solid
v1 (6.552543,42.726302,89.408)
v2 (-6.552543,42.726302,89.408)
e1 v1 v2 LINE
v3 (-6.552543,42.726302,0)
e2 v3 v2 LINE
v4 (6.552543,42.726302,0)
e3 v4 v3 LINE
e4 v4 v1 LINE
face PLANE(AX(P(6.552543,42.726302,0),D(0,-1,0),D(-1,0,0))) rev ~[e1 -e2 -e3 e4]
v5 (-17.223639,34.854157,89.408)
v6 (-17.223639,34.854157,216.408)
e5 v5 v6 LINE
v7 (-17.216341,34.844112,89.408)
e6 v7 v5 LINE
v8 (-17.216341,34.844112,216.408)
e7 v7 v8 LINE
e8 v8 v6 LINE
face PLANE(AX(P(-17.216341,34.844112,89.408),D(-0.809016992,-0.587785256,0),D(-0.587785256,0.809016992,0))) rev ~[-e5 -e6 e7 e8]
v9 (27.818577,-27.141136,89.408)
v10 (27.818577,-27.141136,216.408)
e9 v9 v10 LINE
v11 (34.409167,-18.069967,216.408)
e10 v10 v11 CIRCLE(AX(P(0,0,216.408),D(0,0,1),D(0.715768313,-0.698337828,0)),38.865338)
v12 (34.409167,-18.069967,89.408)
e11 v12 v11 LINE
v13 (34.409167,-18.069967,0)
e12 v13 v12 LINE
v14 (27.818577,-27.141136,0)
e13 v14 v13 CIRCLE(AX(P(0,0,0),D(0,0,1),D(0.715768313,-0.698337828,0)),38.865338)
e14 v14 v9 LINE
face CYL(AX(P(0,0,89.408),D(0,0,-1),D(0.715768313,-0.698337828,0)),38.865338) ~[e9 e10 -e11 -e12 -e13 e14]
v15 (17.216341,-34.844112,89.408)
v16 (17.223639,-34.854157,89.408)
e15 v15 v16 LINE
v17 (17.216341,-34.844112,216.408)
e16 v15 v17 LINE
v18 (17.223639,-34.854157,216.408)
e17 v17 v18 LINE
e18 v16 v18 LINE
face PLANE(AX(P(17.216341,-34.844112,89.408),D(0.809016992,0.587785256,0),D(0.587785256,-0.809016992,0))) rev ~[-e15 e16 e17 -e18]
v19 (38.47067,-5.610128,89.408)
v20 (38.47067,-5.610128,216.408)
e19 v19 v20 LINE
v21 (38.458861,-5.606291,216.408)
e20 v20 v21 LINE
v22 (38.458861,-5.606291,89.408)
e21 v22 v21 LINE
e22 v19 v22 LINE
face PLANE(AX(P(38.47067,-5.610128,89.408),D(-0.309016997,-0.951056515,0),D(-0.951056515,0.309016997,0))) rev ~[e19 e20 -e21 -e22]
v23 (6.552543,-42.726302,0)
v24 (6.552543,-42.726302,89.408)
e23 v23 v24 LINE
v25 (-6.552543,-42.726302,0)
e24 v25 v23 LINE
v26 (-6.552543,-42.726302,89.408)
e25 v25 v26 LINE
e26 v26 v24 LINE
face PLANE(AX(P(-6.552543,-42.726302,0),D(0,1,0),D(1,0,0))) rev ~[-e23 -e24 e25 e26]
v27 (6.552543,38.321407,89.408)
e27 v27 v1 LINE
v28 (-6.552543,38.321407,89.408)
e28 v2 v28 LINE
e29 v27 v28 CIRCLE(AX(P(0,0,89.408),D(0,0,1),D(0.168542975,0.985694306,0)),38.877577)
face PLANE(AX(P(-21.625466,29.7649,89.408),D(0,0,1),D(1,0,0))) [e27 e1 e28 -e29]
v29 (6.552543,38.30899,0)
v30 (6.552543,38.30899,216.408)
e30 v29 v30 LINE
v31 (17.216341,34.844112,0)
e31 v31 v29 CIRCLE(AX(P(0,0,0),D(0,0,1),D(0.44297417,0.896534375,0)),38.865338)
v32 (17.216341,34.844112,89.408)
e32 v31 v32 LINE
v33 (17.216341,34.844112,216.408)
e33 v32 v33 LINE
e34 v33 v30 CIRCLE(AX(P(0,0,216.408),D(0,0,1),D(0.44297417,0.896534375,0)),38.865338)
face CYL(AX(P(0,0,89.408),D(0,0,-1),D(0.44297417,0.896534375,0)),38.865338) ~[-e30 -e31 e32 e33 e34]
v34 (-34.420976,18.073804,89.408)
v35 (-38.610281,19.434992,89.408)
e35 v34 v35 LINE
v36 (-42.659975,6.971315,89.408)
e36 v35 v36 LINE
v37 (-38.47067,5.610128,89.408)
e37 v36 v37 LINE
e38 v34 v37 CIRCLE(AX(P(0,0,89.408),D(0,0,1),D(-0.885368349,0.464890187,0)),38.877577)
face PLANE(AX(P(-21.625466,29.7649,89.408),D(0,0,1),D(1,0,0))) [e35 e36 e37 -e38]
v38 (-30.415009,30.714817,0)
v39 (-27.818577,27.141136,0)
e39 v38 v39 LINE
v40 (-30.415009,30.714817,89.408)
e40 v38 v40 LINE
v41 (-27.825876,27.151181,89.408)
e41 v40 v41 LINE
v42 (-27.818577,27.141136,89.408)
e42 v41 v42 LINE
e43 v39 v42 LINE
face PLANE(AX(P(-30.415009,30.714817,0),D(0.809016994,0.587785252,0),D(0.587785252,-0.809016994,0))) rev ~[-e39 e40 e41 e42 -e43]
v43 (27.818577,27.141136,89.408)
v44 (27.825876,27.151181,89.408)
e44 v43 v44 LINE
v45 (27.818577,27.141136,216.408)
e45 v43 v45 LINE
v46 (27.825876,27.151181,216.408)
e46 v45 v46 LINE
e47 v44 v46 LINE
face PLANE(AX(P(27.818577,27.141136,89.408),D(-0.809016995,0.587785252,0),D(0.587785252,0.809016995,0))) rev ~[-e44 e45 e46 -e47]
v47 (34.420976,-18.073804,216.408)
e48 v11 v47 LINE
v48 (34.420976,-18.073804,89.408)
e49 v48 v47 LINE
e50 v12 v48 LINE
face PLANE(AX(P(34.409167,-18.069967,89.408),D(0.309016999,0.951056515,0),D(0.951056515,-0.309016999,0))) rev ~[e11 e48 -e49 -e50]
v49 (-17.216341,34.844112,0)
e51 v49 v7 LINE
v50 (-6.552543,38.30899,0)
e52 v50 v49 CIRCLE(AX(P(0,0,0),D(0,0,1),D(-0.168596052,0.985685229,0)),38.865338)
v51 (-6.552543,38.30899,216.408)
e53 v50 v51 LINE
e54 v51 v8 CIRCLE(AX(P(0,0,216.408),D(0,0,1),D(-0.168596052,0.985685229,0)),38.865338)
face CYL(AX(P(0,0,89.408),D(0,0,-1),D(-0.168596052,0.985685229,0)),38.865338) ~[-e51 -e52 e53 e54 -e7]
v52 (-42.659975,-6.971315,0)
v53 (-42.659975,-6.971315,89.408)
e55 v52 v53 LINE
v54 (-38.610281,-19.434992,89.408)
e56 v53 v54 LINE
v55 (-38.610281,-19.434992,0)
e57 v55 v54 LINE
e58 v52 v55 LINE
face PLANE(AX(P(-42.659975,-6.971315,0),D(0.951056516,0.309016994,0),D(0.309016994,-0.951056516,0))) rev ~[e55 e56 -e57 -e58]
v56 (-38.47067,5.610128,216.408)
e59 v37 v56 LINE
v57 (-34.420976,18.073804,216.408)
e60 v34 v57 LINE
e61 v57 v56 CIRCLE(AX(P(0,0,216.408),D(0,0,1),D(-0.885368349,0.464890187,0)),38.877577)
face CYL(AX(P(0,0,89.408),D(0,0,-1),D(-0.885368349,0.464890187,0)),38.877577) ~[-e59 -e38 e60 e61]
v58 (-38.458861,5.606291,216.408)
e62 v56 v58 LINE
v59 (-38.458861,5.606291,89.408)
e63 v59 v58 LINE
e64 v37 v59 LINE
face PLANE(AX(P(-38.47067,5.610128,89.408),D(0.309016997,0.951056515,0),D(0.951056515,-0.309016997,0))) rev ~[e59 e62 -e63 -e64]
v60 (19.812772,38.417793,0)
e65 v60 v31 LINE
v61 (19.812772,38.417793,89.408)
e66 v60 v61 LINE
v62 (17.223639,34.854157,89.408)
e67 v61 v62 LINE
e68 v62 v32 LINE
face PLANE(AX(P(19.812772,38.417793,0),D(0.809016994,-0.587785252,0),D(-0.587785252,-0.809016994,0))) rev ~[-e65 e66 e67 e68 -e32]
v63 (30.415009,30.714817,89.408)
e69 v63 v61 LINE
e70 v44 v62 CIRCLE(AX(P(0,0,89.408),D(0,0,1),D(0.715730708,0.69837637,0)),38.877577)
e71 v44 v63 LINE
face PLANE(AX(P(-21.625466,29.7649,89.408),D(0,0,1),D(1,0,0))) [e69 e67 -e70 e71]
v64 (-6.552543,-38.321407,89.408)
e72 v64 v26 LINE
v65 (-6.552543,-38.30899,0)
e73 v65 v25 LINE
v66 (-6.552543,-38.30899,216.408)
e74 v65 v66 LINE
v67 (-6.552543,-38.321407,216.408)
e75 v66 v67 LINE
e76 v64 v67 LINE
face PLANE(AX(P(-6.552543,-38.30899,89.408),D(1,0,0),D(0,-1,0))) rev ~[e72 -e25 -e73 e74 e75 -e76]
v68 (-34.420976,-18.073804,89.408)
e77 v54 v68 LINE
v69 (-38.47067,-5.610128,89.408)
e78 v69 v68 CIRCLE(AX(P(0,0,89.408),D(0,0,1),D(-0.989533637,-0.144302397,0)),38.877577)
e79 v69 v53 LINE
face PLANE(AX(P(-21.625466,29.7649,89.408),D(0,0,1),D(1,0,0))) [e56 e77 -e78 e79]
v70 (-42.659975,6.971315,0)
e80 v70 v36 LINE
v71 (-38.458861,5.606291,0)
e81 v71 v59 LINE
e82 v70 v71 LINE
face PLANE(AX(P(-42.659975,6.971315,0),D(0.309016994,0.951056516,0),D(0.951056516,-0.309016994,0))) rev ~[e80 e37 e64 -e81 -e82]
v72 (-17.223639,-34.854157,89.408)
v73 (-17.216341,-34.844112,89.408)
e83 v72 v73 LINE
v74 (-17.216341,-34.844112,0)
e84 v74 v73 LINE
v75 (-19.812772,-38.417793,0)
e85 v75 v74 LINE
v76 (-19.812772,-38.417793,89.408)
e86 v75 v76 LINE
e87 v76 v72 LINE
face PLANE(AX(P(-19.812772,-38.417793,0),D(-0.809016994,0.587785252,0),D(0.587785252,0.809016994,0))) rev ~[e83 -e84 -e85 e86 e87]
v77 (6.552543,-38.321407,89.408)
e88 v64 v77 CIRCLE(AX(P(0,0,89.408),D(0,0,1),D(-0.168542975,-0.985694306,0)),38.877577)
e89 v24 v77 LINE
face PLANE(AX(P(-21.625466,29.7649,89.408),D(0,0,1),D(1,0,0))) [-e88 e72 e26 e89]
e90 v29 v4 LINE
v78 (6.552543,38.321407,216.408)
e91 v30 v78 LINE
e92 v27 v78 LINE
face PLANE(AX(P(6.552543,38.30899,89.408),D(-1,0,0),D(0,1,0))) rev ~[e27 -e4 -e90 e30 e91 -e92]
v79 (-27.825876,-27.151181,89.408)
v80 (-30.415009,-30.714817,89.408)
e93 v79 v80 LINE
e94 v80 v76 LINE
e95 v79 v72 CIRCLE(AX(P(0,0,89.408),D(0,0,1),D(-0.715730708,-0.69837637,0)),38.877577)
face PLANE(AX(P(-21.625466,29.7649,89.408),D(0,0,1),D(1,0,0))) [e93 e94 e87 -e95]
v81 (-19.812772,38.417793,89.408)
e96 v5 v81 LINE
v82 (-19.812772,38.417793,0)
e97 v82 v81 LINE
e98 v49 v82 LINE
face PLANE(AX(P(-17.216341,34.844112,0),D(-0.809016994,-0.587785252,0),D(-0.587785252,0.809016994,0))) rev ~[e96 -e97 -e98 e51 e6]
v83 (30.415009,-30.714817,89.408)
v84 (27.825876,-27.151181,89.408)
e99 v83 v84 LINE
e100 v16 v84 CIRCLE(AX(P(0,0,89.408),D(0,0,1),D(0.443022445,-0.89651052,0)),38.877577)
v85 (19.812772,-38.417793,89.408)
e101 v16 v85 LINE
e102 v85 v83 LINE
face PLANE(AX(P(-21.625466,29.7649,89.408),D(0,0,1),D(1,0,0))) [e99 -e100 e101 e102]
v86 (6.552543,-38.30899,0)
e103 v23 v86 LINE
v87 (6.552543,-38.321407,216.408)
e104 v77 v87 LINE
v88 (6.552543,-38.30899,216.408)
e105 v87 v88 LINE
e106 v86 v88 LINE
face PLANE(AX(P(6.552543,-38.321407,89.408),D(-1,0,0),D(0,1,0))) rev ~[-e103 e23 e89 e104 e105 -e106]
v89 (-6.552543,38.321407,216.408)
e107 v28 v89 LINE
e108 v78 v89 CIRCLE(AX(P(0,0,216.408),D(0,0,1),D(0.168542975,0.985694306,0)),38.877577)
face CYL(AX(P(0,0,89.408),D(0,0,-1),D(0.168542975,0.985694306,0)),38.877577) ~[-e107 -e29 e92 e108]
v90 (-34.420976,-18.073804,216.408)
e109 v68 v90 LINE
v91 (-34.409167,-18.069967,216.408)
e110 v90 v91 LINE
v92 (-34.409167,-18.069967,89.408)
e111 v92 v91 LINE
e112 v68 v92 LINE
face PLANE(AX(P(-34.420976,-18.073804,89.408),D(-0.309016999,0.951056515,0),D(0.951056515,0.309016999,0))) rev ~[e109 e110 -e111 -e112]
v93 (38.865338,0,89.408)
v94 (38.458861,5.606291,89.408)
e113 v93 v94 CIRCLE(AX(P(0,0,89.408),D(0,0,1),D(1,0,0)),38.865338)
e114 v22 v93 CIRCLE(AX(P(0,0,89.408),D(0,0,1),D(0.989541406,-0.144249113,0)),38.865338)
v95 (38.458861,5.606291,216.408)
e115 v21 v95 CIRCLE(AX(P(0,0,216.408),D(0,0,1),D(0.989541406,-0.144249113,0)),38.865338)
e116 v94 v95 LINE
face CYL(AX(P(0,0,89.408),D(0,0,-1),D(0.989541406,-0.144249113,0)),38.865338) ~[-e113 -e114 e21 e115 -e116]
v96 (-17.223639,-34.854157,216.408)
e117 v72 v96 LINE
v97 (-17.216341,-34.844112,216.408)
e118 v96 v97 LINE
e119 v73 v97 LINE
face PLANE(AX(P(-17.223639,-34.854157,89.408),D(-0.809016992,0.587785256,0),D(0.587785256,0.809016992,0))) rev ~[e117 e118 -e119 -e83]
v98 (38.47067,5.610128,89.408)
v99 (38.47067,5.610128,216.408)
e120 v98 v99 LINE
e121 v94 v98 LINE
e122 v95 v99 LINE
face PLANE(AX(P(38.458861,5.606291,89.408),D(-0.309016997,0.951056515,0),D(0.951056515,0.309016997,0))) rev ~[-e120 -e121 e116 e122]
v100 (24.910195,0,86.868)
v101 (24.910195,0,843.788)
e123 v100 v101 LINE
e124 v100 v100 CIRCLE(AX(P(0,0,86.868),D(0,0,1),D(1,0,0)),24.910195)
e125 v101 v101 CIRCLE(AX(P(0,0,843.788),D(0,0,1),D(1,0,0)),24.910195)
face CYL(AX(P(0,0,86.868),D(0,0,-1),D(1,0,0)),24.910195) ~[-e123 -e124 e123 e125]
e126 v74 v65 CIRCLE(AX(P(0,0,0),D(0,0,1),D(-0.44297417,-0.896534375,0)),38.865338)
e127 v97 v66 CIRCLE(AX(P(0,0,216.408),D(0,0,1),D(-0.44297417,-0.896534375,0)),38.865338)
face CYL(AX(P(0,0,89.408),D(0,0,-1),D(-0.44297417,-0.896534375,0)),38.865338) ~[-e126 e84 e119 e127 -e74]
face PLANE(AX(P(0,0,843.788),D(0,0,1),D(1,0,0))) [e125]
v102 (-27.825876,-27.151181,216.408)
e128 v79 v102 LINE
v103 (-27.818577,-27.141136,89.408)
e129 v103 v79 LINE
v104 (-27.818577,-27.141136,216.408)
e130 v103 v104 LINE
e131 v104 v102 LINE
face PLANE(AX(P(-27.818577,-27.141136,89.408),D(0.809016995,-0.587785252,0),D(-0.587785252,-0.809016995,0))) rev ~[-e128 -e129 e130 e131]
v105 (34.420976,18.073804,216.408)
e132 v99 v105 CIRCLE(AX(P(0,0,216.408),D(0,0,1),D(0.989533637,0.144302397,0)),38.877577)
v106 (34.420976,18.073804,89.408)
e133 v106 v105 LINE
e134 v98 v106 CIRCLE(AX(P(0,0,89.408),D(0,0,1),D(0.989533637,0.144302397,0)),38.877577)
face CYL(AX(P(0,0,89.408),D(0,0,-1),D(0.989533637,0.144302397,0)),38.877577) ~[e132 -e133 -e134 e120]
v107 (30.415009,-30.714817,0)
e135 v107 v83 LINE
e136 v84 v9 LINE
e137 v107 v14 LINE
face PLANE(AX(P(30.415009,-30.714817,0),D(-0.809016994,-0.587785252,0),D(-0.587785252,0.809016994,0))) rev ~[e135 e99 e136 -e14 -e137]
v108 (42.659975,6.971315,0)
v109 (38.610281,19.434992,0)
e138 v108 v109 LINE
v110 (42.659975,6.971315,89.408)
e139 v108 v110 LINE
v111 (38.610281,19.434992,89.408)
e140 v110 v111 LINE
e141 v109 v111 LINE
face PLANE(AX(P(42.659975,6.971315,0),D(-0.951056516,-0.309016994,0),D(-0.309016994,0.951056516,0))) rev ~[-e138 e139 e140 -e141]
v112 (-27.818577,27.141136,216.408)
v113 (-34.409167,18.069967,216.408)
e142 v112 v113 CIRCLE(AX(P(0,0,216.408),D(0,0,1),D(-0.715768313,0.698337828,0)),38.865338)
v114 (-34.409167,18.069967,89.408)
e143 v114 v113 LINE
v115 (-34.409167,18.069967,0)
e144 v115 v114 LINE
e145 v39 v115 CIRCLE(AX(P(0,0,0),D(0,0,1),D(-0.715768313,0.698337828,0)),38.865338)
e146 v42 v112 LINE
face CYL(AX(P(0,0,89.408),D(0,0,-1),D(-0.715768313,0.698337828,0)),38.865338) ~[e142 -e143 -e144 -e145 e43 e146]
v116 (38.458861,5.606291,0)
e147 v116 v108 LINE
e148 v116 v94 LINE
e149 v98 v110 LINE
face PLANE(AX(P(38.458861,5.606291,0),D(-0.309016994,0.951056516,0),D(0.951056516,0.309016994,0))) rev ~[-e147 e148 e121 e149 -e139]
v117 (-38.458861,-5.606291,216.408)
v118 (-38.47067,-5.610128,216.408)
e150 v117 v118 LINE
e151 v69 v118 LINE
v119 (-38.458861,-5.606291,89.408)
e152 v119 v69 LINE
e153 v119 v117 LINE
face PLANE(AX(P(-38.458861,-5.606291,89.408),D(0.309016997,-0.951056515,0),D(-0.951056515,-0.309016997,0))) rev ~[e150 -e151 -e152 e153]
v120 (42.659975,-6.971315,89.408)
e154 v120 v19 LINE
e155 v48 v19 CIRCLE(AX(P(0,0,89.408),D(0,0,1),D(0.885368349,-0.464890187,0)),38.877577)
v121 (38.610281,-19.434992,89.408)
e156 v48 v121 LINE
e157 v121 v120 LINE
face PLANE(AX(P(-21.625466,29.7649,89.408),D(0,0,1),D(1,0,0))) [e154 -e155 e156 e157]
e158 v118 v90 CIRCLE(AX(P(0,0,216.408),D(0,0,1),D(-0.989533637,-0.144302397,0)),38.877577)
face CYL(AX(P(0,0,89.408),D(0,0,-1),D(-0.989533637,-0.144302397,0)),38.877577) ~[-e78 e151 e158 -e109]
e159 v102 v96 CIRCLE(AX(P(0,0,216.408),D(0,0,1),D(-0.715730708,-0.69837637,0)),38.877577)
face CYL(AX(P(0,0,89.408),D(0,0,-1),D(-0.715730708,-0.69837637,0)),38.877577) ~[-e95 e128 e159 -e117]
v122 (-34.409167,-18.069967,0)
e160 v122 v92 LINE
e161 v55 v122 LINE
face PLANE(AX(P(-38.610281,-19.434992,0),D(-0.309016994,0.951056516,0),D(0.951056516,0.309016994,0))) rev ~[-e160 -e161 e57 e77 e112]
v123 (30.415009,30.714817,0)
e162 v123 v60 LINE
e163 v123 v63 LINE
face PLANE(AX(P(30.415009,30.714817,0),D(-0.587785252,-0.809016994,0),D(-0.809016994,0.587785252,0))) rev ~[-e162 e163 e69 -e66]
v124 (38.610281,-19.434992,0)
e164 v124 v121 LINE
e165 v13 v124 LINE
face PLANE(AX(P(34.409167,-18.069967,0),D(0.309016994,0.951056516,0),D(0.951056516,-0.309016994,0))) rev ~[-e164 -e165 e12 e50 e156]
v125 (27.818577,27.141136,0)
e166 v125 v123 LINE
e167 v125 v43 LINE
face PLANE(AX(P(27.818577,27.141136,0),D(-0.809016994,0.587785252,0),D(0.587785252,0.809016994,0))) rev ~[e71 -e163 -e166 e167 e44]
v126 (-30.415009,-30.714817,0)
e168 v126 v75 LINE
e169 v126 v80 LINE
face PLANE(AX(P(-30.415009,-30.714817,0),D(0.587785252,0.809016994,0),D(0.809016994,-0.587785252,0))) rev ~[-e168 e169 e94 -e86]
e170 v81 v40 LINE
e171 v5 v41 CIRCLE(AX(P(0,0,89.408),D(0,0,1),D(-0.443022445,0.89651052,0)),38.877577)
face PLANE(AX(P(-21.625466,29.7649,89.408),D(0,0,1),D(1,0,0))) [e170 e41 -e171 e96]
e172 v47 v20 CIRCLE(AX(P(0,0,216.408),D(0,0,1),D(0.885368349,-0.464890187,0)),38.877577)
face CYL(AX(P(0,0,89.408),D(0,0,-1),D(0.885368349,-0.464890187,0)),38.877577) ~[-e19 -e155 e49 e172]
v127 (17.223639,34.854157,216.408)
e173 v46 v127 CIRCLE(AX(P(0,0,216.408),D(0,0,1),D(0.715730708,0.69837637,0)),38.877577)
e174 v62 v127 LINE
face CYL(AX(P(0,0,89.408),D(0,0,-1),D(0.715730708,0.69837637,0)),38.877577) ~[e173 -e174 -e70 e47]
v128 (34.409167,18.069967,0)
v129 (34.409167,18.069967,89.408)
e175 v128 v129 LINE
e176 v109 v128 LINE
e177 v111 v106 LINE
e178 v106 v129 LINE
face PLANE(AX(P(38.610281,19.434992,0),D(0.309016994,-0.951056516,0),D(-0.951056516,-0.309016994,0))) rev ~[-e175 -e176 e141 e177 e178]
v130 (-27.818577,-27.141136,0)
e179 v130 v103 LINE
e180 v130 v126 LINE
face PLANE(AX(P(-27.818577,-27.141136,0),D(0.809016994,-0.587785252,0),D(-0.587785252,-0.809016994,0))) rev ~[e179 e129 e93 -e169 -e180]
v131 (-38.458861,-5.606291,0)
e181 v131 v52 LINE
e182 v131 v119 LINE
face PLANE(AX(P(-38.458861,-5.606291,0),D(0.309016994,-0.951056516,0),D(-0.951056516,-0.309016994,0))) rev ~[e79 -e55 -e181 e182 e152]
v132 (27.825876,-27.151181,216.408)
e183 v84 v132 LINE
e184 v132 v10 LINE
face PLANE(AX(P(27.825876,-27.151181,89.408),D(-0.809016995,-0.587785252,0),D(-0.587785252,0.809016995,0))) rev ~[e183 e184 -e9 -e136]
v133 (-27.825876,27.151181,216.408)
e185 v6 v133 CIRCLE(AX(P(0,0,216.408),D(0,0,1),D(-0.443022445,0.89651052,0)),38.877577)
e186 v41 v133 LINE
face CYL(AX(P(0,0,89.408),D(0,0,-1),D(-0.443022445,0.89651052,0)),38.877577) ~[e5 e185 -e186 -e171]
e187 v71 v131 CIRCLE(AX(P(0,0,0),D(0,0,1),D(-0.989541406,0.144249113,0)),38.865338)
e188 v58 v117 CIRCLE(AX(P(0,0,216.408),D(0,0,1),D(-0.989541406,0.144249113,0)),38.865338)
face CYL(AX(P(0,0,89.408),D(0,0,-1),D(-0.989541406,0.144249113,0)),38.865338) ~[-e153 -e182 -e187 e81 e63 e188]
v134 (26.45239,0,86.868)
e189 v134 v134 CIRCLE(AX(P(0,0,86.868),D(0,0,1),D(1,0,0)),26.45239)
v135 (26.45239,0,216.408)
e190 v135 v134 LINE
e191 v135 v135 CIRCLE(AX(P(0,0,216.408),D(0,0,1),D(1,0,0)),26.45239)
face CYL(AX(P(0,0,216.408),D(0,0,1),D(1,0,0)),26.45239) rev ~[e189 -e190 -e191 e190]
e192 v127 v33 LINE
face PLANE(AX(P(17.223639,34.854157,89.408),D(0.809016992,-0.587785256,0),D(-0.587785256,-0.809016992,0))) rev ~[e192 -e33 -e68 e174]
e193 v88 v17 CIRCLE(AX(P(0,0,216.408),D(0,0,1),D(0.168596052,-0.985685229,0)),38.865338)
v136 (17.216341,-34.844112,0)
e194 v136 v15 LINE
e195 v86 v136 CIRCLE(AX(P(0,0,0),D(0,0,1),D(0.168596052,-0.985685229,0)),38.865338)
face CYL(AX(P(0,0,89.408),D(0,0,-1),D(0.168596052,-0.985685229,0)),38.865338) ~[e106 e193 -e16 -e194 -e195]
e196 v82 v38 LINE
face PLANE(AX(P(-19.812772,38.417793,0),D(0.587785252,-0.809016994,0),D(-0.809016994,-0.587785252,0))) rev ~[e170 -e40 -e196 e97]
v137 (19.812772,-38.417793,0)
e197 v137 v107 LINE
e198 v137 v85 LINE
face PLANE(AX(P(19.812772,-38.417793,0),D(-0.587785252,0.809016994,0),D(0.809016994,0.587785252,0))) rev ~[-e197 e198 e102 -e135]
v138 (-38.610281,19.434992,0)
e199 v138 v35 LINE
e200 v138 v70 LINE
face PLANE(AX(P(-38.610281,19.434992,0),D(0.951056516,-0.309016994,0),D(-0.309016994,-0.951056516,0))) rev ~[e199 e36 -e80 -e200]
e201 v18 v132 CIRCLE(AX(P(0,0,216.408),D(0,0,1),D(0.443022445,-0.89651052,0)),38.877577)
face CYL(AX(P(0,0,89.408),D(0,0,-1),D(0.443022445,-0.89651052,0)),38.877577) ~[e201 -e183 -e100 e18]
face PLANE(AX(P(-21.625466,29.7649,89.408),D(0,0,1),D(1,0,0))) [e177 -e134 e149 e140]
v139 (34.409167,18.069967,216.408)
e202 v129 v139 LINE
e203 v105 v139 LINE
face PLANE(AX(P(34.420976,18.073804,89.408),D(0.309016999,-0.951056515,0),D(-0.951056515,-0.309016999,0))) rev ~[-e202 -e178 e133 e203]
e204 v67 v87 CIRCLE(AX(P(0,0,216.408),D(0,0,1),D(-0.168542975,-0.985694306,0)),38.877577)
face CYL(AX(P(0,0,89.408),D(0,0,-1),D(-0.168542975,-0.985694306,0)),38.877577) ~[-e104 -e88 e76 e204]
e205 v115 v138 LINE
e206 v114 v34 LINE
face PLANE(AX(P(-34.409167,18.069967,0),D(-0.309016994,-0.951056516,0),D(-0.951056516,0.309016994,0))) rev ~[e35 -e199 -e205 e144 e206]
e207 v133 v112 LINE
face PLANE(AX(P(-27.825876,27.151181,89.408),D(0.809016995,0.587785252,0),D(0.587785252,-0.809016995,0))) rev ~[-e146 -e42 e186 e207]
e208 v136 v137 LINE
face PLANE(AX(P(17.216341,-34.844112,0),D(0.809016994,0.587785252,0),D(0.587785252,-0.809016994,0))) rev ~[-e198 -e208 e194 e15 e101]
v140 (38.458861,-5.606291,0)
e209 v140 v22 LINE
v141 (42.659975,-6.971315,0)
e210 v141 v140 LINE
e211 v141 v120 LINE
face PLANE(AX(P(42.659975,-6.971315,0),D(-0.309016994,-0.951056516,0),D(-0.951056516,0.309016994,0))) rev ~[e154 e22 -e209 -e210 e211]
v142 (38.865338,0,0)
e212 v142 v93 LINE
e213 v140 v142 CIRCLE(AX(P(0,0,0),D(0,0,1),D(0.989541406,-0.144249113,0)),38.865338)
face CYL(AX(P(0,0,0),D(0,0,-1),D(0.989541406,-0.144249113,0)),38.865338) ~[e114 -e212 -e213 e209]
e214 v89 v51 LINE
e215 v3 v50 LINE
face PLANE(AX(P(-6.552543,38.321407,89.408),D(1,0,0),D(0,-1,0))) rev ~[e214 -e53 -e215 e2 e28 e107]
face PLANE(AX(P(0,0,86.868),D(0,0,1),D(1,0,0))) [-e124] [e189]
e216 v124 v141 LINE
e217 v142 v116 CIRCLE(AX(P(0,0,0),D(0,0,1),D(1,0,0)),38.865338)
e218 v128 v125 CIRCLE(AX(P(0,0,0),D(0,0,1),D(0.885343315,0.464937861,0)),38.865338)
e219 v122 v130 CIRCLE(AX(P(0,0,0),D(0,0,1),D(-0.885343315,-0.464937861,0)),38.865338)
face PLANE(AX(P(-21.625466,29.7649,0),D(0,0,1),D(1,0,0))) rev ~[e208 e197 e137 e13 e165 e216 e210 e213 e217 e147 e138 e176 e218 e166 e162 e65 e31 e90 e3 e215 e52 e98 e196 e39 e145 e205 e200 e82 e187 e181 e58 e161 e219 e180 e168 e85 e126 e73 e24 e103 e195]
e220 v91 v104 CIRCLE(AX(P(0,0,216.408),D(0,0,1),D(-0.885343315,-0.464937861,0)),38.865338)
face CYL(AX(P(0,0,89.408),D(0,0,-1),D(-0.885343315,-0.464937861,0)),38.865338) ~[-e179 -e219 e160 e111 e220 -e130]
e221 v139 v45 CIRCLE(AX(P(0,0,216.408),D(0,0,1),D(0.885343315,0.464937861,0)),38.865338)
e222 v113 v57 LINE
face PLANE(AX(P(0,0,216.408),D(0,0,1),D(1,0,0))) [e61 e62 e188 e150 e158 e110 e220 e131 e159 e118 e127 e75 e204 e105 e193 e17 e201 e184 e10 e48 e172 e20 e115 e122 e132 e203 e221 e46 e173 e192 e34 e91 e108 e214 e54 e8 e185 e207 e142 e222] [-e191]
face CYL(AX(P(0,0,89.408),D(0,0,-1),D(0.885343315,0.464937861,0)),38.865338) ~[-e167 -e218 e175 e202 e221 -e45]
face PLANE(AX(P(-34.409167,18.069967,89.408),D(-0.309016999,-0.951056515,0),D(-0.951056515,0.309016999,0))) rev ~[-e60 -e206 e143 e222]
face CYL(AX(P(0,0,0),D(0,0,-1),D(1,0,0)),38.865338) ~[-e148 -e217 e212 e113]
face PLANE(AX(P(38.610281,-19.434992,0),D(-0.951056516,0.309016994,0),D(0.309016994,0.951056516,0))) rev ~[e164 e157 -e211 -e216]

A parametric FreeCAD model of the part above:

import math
import FreeCAD as App
import Part
import Sketcher
Q = App.Units.Quantity

doc = App.newDocument("Part")
body = doc.addObject("PartDesign::Body", "Body")

# Sketch on XY plane
sketch1 = body.newObject("Sketcher::SketchObject", "Sketch")
sketch1.AttachmentSupport = (doc.getObject("XY_Plane"), [""])
sketch1.MapMode = "FlatFace"
sketch1.addGeometry([
    Part.LineSegment(App.Vector(-17.2, 34.8, 0), App.Vector(-19.8, 38.4, 0)),  # 0
    Part.LineSegment(App.Vector(-19.8, 38.4, 0), App.Vector(-30.4, 30.7, 0)),  # 1
    Part.LineSegment(App.Vector(-30.4, 30.7, 0), App.Vector(-27.8, 27.1, 0)),  # 2
    Part.ArcOfCircle(Part.Circle(App.Vector(0, 0, 0), App.Vector(0, 0, 1), 38.9), math.radians(135.71), math.radians(152.29)),  # 3
    Part.LineSegment(App.Vector(-34.4, 18.1, 0), App.Vector(-38.6, 19.4, 0)),  # 4
    Part.LineSegment(App.Vector(-38.6, 19.4, 0), App.Vector(-42.7, 7, 0)),  # 5
    Part.LineSegment(App.Vector(-42.7, 7, 0), App.Vector(-38.5, 5.6, 0)),  # 6
    Part.ArcOfCircle(Part.Circle(App.Vector(0, 0, 0), App.Vector(0, 0, 1), 38.9), math.radians(171.71), math.radians(188.29)),  # 7
    Part.LineSegment(App.Vector(-38.5, -5.6, 0), App.Vector(-42.7, -7, 0)),  # 8
    Part.LineSegment(App.Vector(-42.7, -7, 0), App.Vector(-38.6, -19.4, 0)),  # 9
    Part.LineSegment(App.Vector(-38.6, -19.4, 0), App.Vector(-34.4, -18.1, 0)),  # 10
    Part.ArcOfCircle(Part.Circle(App.Vector(0, 0, 0), App.Vector(0, 0, 1), 38.9), math.radians(-152.29), math.radians(-135.71)),  # 11
    Part.LineSegment(App.Vector(-27.8, -27.1, 0), App.Vector(-30.4, -30.7, 0)),  # 12
    Part.LineSegment(App.Vector(-30.4, -30.7, 0), App.Vector(-19.8, -38.4, 0)),  # 13
    Part.LineSegment(App.Vector(-19.8, -38.4, 0), App.Vector(-17.2, -34.8, 0)),  # 14
    Part.ArcOfCircle(Part.Circle(App.Vector(0, 0, 0), App.Vector(0, 0, 1), 38.9), math.radians(-116.29), math.radians(-99.71)),  # 15
    Part.LineSegment(App.Vector(-6.6, -38.3, 0), App.Vector(-6.6, -42.7, 0)),  # 16
    Part.LineSegment(App.Vector(-6.6, -42.7, 0), App.Vector(6.6, -42.7, 0)),  # 17
    Part.LineSegment(App.Vector(6.6, -42.7, 0), App.Vector(6.6, -38.3, 0)),  # 18
    Part.ArcOfCircle(Part.Circle(App.Vector(0, 0, 0), App.Vector(0, 0, 1), 38.9), math.radians(-80.29), math.radians(-63.71)),  # 19
    Part.LineSegment(App.Vector(17.2, -34.8, 0), App.Vector(19.8, -38.4, 0)),  # 20
    Part.LineSegment(App.Vector(19.8, -38.4, 0), App.Vector(30.4, -30.7, 0)),  # 21
    Part.LineSegment(App.Vector(30.4, -30.7, 0), App.Vector(27.8, -27.1, 0)),  # 22
    Part.ArcOfCircle(Part.Circle(App.Vector(0, 0, 0), App.Vector(0, 0, 1), 38.9), math.radians(-44.29), math.radians(-27.71)),  # 23
    Part.LineSegment(App.Vector(34.4, -18.1, 0), App.Vector(38.6, -19.4, 0)),  # 24
    Part.LineSegment(App.Vector(38.6, -19.4, 0), App.Vector(42.7, -7, 0)),  # 25
    Part.LineSegment(App.Vector(42.7, -7, 0), App.Vector(38.5, -5.6, 0)),  # 26
    Part.ArcOfCircle(Part.Circle(App.Vector(0, 0, 0), App.Vector(0, 0, 1), 38.9), math.radians(-8.29), math.radians(0)),  # 27
    Part.ArcOfCircle(Part.Circle(App.Vector(0, 0, 0), App.Vector(0, 0, 1), 38.9), math.radians(0), math.radians(8.29)),  # 28
    Part.LineSegment(App.Vector(38.5, 5.6, 0), App.Vector(42.7, 7, 0)),  # 29
    Part.LineSegment(App.Vector(42.7, 7, 0), App.Vector(38.6, 19.4, 0)),  # 30
    Part.LineSegment(App.Vector(38.6, 19.4, 0), App.Vector(34.4, 18.1, 0)),  # 31
    Part.ArcOfCircle(Part.Circle(App.Vector(0, 0, 0), App.Vector(0, 0, 1), 38.9), math.radians(27.71), math.radians(44.29)),  # 32
    Part.LineSegment(App.Vector(27.8, 27.1, 0), App.Vector(30.4, 30.7, 0)),  # 33
    Part.LineSegment(App.Vector(30.4, 30.7, 0), App.Vector(19.8, 38.4, 0)),  # 34
    Part.LineSegment(App.Vector(19.8, 38.4, 0), App.Vector(17.2, 34.8, 0)),  # 35
    Part.ArcOfCircle(Part.Circle(App.Vector(0, 0, 0), App.Vector(0, 0, 1), 38.9), math.radians(63.71), math.radians(80.29)),  # 36
    Part.LineSegment(App.Vector(6.6, 38.3, 0), App.Vector(6.6, 42.7, 0)),  # 37
    Part.LineSegment(App.Vector(6.6, 42.7, 0), App.Vector(-6.6, 42.7, 0)),  # 38
    Part.LineSegment(App.Vector(-6.6, 42.7, 0), App.Vector(-6.6, 38.3, 0)),  # 39
    Part.ArcOfCircle(Part.Circle(App.Vector(0, 0, 0), App.Vector(0, 0, 1), 38.9), math.radians(99.71), math.radians(116.29)),  # 40
], False)
sketch1.addConstraint([
    Sketcher.Constraint("Coincident", 0, 2, 1, 1),
    Sketcher.Constraint("Coincident", 1, 2, 2, 1),
    Sketcher.Constraint("Coincident", 2, 2, 3, 1),
    Sketcher.Constraint("Coincident", 3, 2, 4, 1),
    Sketcher.Constraint("Coincident", 4, 2, 5, 1),
    Sketcher.Constraint("Coincident", 5, 2, 6, 1),
    Sketcher.Constraint("Coincident", 6, 2, 7, 1),
    Sketcher.Constraint("Coincident", 7, 2, 8, 1),
    Sketcher.Constraint("Coincident", 8, 2, 9, 1),
    Sketcher.Constraint("Coincident", 9, 2, 10, 1),
    Sketcher.Constraint("Coincident", 10, 2, 11, 1),
    Sketcher.Constraint("Coincident", 11, 2, 12, 1),
    Sketcher.Constraint("Coincident", 12, 2, 13, 1),
    Sketcher.Constraint("Coincident", 13, 2, 14, 1),
    Sketcher.Constraint("Coincident", 14, 2, 15, 1),
    Sketcher.Constraint("Coincident", 15, 2, 16, 1),
    Sketcher.Constraint("Coincident", 16, 2, 17, 1),
    Sketcher.Constraint("Coincident", 17, 2, 18, 1),
    Sketcher.Constraint("Coincident", 18, 2, 19, 1),
    Sketcher.Constraint("Coincident", 19, 2, 20, 1),
    Sketcher.Constraint("Coincident", 20, 2, 21, 1),
    Sketcher.Constraint("Coincident", 21, 2, 22, 1),
    Sketcher.Constraint("Coincident", 22, 2, 23, 1),
    Sketcher.Constraint("Coincident", 23, 2, 24, 1),
    Sketcher.Constraint("Coincident", 24, 2, 25, 1),
    Sketcher.Constraint("Coincident", 25, 2, 26, 1),
    Sketcher.Constraint("Coincident", 26, 2, 27, 1),
    Sketcher.Constraint("Tangent", 27, 2, 28, 1),
    Sketcher.Constraint("Coincident", 28, 2, 29, 1),
    Sketcher.Constraint("Coincident", 29, 2, 30, 1),
    Sketcher.Constraint("Coincident", 30, 2, 31, 1),
    Sketcher.Constraint("Coincident", 31, 2, 32, 1),
    Sketcher.Constraint("Coincident", 32, 2, 33, 1),
    Sketcher.Constraint("Coincident", 33, 2, 34, 1),
    Sketcher.Constraint("Coincident", 34, 2, 35, 1),
    Sketcher.Constraint("Coincident", 35, 2, 36, 1),
    Sketcher.Constraint("Coincident", 36, 2, 37, 1),
    Sketcher.Constraint("Coincident", 37, 2, 38, 1),
    Sketcher.Constraint("Coincident", 38, 2, 39, 1),
    Sketcher.Constraint("Coincident", 39, 2, 40, 1),
    Sketcher.Constraint("Coincident", 40, 2, 0, 1),
    Sketcher.Constraint("Vertical", 16),
    Sketcher.Constraint("Horizontal", 17),
    Sketcher.Constraint("Vertical", 18),
    Sketcher.Constraint("Vertical", 37),
    Sketcher.Constraint("Horizontal", 38),
    Sketcher.Constraint("Vertical", 39),
    Sketcher.Constraint("Coincident", 3, 3, -1, 1),
    Sketcher.Constraint("Coincident", 7, 3, -1, 1),
    Sketcher.Constraint("Coincident", 11, 3, -1, 1),
    Sketcher.Constraint("Coincident", 15, 3, -1, 1),
    Sketcher.Constraint("Coincident", 19, 3, -1, 1),
    Sketcher.Constraint("Coincident", 23, 3, -1, 1),
    Sketcher.Constraint("Coincident", 27, 3, -1, 1),
    Sketcher.Constraint("Coincident", 32, 3, -1, 1),
    Sketcher.Constraint("Coincident", 36, 3, -1, 1),
    Sketcher.Constraint("Coincident", 40, 3, -1, 1),
    Sketcher.Constraint("Equal", 3, 7),
    Sketcher.Constraint("Equal", 7, 11),
    Sketcher.Constraint("Equal", 11, 15),
    Sketcher.Constraint("Equal", 15, 19),
    Sketcher.Constraint("Equal", 19, 23),
    Sketcher.Constraint("Equal", 23, 27),
    Sketcher.Constraint("Equal", 27, 28),
    Sketcher.Constraint("Equal", 28, 32),
    Sketcher.Constraint("Equal", 32, 36),
    Sketcher.Constraint("Equal", 36, 40),
    Sketcher.Constraint("Symmetric", 0, 2, 20, 2, -1, 1),
    Sketcher.Constraint("Symmetric", 1, 2, 21, 2, -1, 1),
    Sketcher.Constraint("Symmetric", 4, 2, 24, 2, -1, 1),
    Sketcher.Constraint("Symmetric", 5, 2, 25, 2, -1, 1),
    Sketcher.Constraint("Symmetric", 8, 2, 29, 2, -1, 1),
    Sketcher.Constraint("Symmetric", 9, 2, 30, 2, -1, 1),
    Sketcher.Constraint("Symmetric", 12, 2, 33, 2, -1, 1),
    Sketcher.Constraint("Symmetric", 13, 2, 34, 2, -1, 1),
    Sketcher.Constraint("Symmetric", 16, 2, 37, 2, -1, 1),
    Sketcher.Constraint("Symmetric", 13, 2, 20, 2, -2),
    Sketcher.Constraint("Symmetric", 12, 2, 21, 2, -2),
    Sketcher.Constraint("Symmetric", 9, 2, 24, 2, -2),
    Sketcher.Constraint("Symmetric", 8, 2, 25, 2, -2),
    Sketcher.Constraint("PointOnObject", 27, 2, -1),
    Sketcher.Constraint("Perpendicular", 0, 1),
    Sketcher.Constraint("Perpendicular", 1, 2),
    Sketcher.Constraint("Perpendicular", 4, 5),
    Sketcher.Constraint("Perpendicular", 5, 6),
    Sketcher.Constraint("Perpendicular", 8, 9),
    Sketcher.Constraint("Perpendicular", 9, 10),
    Sketcher.Constraint("Perpendicular", 12, 13),
    Sketcher.Constraint("Perpendicular", 13, 14),
    Sketcher.Constraint("Parallel", 2, 20),
    Sketcher.Constraint("Perpendicular", 21, 22),
    Sketcher.Constraint("Parallel", 6, 24),
    Sketcher.Constraint("Perpendicular", 25, 26),
    Sketcher.Constraint("Parallel", 10, 29),
    Sketcher.Constraint("Perpendicular", 30, 31),
    Sketcher.Constraint("Parallel", 14, 33),
    Sketcher.Constraint("Perpendicular", 34, 35),
    Sketcher.Constraint("Horizontal", 15, 2, 18, 2),
    Sketcher.Constraint("Horizontal", 36, 2, 39, 2),
    Sketcher.Constraint("Equal", 0, 2),
    Sketcher.Constraint("Equal", 2, 4),
    Sketcher.Constraint("Equal", 1, 5),
    Sketcher.Constraint("Equal", 4, 6),
    Sketcher.Constraint("Angle", 0, Q("126 deg")),
    Sketcher.Constraint("Angle", 4, Q("162 deg")),
    Sketcher.Constraint("Radius", 3, 38.865338),
    Sketcher.Constraint("DistanceY", 4, 2, 0, 2, 18.982801),
    Sketcher.Constraint("DistanceY", 5, 2, 1, 2, 23.743502),
    Sketcher.Constraint("DistanceX", 14, 2, 15, 2, 10.663798),
    Sketcher.Constraint("DistanceY", 16, 2, 16, 1, 4.417313),
])
pad1 = body.newObject("PartDesign::Pad", "Pad")
pad1.Profile = sketch1
pad1.Length = Q("3.52 in")

# Sketch on XY plane
sketch2 = body.newObject("Sketcher::SketchObject", "Sketch001")
sketch2.AttachmentSupport = (doc.getObject("XY_Plane"), [""])
sketch2.MapMode = "FlatFace"
sketch2.AttachmentOffset = App.Placement(App.Vector(0, 0, 3.52 * 25.4), App.Rotation())
sketch2.addGeometry([
    Part.LineSegment(App.Vector(38.459, 5.606, 0), App.Vector(38.471, 5.61, 0)),  # 0
    Part.ArcOfCircle(Part.Circle(App.Vector(0, 0, 0), App.Vector(0, 0, 1), 38.878), math.radians(8.3), math.radians(27.7)),  # 1
    Part.LineSegment(App.Vector(34.421, 18.074, 0), App.Vector(34.409, 18.07, 0)),  # 2
    Part.ArcOfCircle(Part.Circle(App.Vector(0, 0, 0), App.Vector(0, 0, 1), 38.865), math.radians(27.71), math.radians(44.29)),  # 3
    Part.LineSegment(App.Vector(27.819, 27.141, 0), App.Vector(27.826, 27.151, 0)),  # 4
    Part.ArcOfCircle(Part.Circle(App.Vector(0, 0, 0), App.Vector(0, 0, 1), 38.878), math.radians(44.3), math.radians(63.7)),  # 5
    Part.LineSegment(App.Vector(17.224, 34.854, 0), App.Vector(17.216, 34.844, 0)),  # 6
    Part.ArcOfCircle(Part.Circle(App.Vector(0, 0, 0), App.Vector(0, 0, 1), 38.865), math.radians(63.71), math.radians(80.29)),  # 7
    Part.LineSegment(App.Vector(6.553, 38.309, 0), App.Vector(6.553, 38.321, 0)),  # 8
    Part.ArcOfCircle(Part.Circle(App.Vector(0, 0, 0), App.Vector(0, 0, 1), 38.878), math.radians(80.3), math.radians(99.7)),  # 9
    Part.LineSegment(App.Vector(-6.553, 38.321, 0), App.Vector(-6.553, 38.309, 0)),  # 10
    Part.ArcOfCircle(Part.Circle(App.Vector(0, 0, 0), App.Vector(0, 0, 1), 38.865), math.radians(99.71), math.radians(116.29)),  # 11
    Part.LineSegment(App.Vector(-17.216, 34.844, 0), App.Vector(-17.224, 34.854, 0)),  # 12
    Part.ArcOfCircle(Part.Circle(App.Vector(0, 0, 0), App.Vector(0, 0, 1), 38.878), math.radians(116.3), math.radians(135.7)),  # 13
    Part.LineSegment(App.Vector(-27.826, 27.151, 0), App.Vector(-27.819, 27.141, 0)),  # 14
    Part.ArcOfCircle(Part.Circle(App.Vector(0, 0, 0), App.Vector(0, 0, 1), 38.865), math.radians(135.71), math.radians(152.29)),  # 15
    Part.LineSegment(App.Vector(-34.409, 18.07, 0), App.Vector(-34.421, 18.074, 0)),  # 16
    Part.ArcOfCircle(Part.Circle(App.Vector(0, 0, 0), App.Vector(0, 0, 1), 38.878), math.radians(152.3), math.radians(171.7)),  # 17
    Part.LineSegment(App.Vector(-38.471, 5.61, 0), App.Vector(-38.459, 5.606, 0)),  # 18
    Part.ArcOfCircle(Part.Circle(App.Vector(0, 0, 0), App.Vector(0, 0, 1), 38.865), math.radians(171.71), math.radians(188.29)),  # 19
    Part.LineSegment(App.Vector(-38.459, -5.606, 0), App.Vector(-38.471, -5.61, 0)),  # 20
    Part.ArcOfCircle(Part.Circle(App.Vector(0, 0, 0), App.Vector(0, 0, 1), 38.878), math.radians(-171.7), math.radians(-152.3)),  # 21
    Part.LineSegment(App.Vector(-34.421, -18.074, 0), App.Vector(-34.409, -18.07, 0)),  # 22
    Part.ArcOfCircle(Part.Circle(App.Vector(0, 0, 0), App.Vector(0, 0, 1), 38.865), math.radians(-152.29), math.radians(-135.71)),  # 23
    Part.LineSegment(App.Vector(-27.819, -27.141, 0), App.Vector(-27.826, -27.151, 0)),  # 24
    Part.ArcOfCircle(Part.Circle(App.Vector(0, 0, 0), App.Vector(0, 0, 1), 38.878), math.radians(-135.7), math.radians(-116.3)),  # 25
    Part.LineSegment(App.Vector(-17.224, -34.854, 0), App.Vector(-17.216, -34.844, 0)),  # 26
    Part.ArcOfCircle(Part.Circle(App.Vector(0, 0, 0), App.Vector(0, 0, 1), 38.865), math.radians(-116.29), math.radians(-99.71)),  # 27
    Part.LineSegment(App.Vector(-6.553, -38.309, 0), App.Vector(-6.553, -38.321, 0)),  # 28
    Part.ArcOfCircle(Part.Circle(App.Vector(0, 0, 0), App.Vector(0, 0, 1), 38.878), math.radians(-99.7), math.radians(-80.3)),  # 29
    Part.LineSegment(App.Vector(6.553, -38.321, 0), App.Vector(6.553, -38.309, 0)),  # 30
    Part.ArcOfCircle(Part.Circle(App.Vector(0, 0, 0), App.Vector(0, 0, 1), 38.865), math.radians(-80.29), math.radians(-63.71)),  # 31
    Part.LineSegment(App.Vector(17.216, -34.844, 0), App.Vector(17.224, -34.854, 0)),  # 32
    Part.ArcOfCircle(Part.Circle(App.Vector(0, 0, 0), App.Vector(0, 0, 1), 38.878), math.radians(-63.7), math.radians(-44.3)),  # 33
    Part.LineSegment(App.Vector(27.826, -27.151, 0), App.Vector(27.819, -27.141, 0)),  # 34
    Part.ArcOfCircle(Part.Circle(App.Vector(0, 0, 0), App.Vector(0, 0, 1), 38.865), math.radians(-44.29), math.radians(-27.71)),  # 35
    Part.LineSegment(App.Vector(34.409, -18.07, 0), App.Vector(34.421, -18.074, 0)),  # 36
    Part.ArcOfCircle(Part.Circle(App.Vector(0, 0, 0), App.Vector(0, 0, 1), 38.878), math.radians(-27.7), math.radians(-8.3)),  # 37
    Part.LineSegment(App.Vector(38.471, -5.61, 0), App.Vector(38.459, -5.606, 0)),  # 38
    Part.ArcOfCircle(Part.Circle(App.Vector(0, 0, 0), App.Vector(0, 0, 1), 38.865), math.radians(-8.29), math.radians(8.29)),  # 39
], False)
sketch2.addConstraint([
    Sketcher.Constraint("Coincident", 0, 2, 1, 1),
    Sketcher.Constraint("Coincident", 1, 2, 2, 1),
    Sketcher.Constraint("Coincident", 2, 2, 3, 1),
    Sketcher.Constraint("Coincident", 3, 2, 4, 1),
    Sketcher.Constraint("Coincident", 4, 2, 5, 1),
    Sketcher.Constraint("Coincident", 5, 2, 6, 1),
    Sketcher.Constraint("Coincident", 6, 2, 7, 1),
    Sketcher.Constraint("Coincident", 7, 2, 8, 1),
    Sketcher.Constraint("Coincident", 8, 2, 9, 1),
    Sketcher.Constraint("Coincident", 9, 2, 10, 1),
    Sketcher.Constraint("Coincident", 10, 2, 11, 1),
    Sketcher.Constraint("Coincident", 11, 2, 12, 1),
    Sketcher.Constraint("Coincident", 12, 2, 13, 1),
    Sketcher.Constraint("Coincident", 13, 2, 14, 1),
    Sketcher.Constraint("Coincident", 14, 2, 15, 1),
    Sketcher.Constraint("Coincident", 15, 2, 16, 1),
    Sketcher.Constraint("Coincident", 16, 2, 17, 1),
    Sketcher.Constraint("Coincident", 17, 2, 18, 1),
    Sketcher.Constraint("Coincident", 18, 2, 19, 1),
    Sketcher.Constraint("Coincident", 19, 2, 20, 1),
    Sketcher.Constraint("Coincident", 20, 2, 21, 1),
    Sketcher.Constraint("Coincident", 21, 2, 22, 1),
    Sketcher.Constraint("Coincident", 22, 2, 23, 1),
    Sketcher.Constraint("Coincident", 23, 2, 24, 1),
    Sketcher.Constraint("Coincident", 24, 2, 25, 1),
    Sketcher.Constraint("Coincident", 25, 2, 26, 1),
    Sketcher.Constraint("Coincident", 26, 2, 27, 1),
    Sketcher.Constraint("Coincident", 27, 2, 28, 1),
    Sketcher.Constraint("Coincident", 28, 2, 29, 1),
    Sketcher.Constraint("Coincident", 29, 2, 30, 1),
    Sketcher.Constraint("Coincident", 30, 2, 31, 1),
    Sketcher.Constraint("Coincident", 31, 2, 32, 1),
    Sketcher.Constraint("Coincident", 32, 2, 33, 1),
    Sketcher.Constraint("Coincident", 33, 2, 34, 1),
    Sketcher.Constraint("Coincident", 34, 2, 35, 1),
    Sketcher.Constraint("Coincident", 35, 2, 36, 1),
    Sketcher.Constraint("Coincident", 36, 2, 37, 1),
    Sketcher.Constraint("Coincident", 37, 2, 38, 1),
    Sketcher.Constraint("Coincident", 38, 2, 39, 1),
    Sketcher.Constraint("Coincident", 39, 2, 0, 1),
    Sketcher.Constraint("Vertical", 8),
    Sketcher.Constraint("Vertical", 10),
    Sketcher.Constraint("Vertical", 28),
    Sketcher.Constraint("Vertical", 30),
    Sketcher.Constraint("Coincident", 1, 3, -1, 1),
    Sketcher.Constraint("Coincident", 3, 3, -1, 1),
    Sketcher.Constraint("Coincident", 5, 3, -1, 1),
    Sketcher.Constraint("Coincident", 7, 3, -1, 1),
    Sketcher.Constraint("Coincident", 9, 3, -1, 1),
    Sketcher.Constraint("Coincident", 11, 3, -1, 1),
    Sketcher.Constraint("Coincident", 13, 3, -1, 1),
    Sketcher.Constraint("Coincident", 15, 3, -1, 1),
    Sketcher.Constraint("Coincident", 17, 3, -1, 1),
    Sketcher.Constraint("Coincident", 19, 3, -1, 1),
    Sketcher.Constraint("Coincident", 21, 3, -1, 1),
    Sketcher.Constraint("Coincident", 23, 3, -1, 1),
    Sketcher.Constraint("Coincident", 25, 3, -1, 1),
    Sketcher.Constraint("Coincident", 27, 3, -1, 1),
    Sketcher.Constraint("Coincident", 29, 3, -1, 1),
    Sketcher.Constraint("Coincident", 31, 3, -1, 1),
    Sketcher.Constraint("Coincident", 33, 3, -1, 1),
    Sketcher.Constraint("Coincident", 35, 3, -1, 1),
    Sketcher.Constraint("Coincident", 37, 3, -1, 1),
    Sketcher.Constraint("Coincident", 39, 3, -1, 1),
    Sketcher.Constraint("Equal", 1, 5),
    Sketcher.Constraint("Equal", 3, 7),
    Sketcher.Constraint("Equal", 5, 9),
    Sketcher.Constraint("Equal", 7, 11),
    Sketcher.Constraint("Equal", 9, 13),
    Sketcher.Constraint("Equal", 11, 15),
    Sketcher.Constraint("Equal", 13, 17),
    Sketcher.Constraint("Equal", 15, 19),
    Sketcher.Constraint("Equal", 17, 21),
    Sketcher.Constraint("Equal", 19, 23),
    Sketcher.Constraint("Equal", 21, 25),
    Sketcher.Constraint("Equal", 23, 27),
    Sketcher.Constraint("Equal", 25, 29),
    Sketcher.Constraint("Equal", 27, 31),
    Sketcher.Constraint("Equal", 29, 33),
    Sketcher.Constraint("Equal", 31, 35),
    Sketcher.Constraint("Equal", 33, 37),
    Sketcher.Constraint("Equal", 35, 39),
    Sketcher.Constraint("Parallel", 0, 2),
    Sketcher.Constraint("Parallel", 4, 6),
    Sketcher.Constraint("Parallel", 12, 14),
    Sketcher.Constraint("Parallel", 16, 18),
    Sketcher.Constraint("Parallel", 2, 20),
    Sketcher.Constraint("Parallel", 20, 22),
    Sketcher.Constraint("Parallel", 6, 24),
    Sketcher.Constraint("Parallel", 24, 26),
    Sketcher.Constraint("Parallel", 14, 32),
    Sketcher.Constraint("Parallel", 32, 34),
    Sketcher.Constraint("Parallel", 18, 36),
    Sketcher.Constraint("Parallel", 36, 38),
    Sketcher.Constraint("Horizontal", 8, 2, 9, 2),
    Sketcher.Constraint("Horizontal", 6, 2, 11, 2),
    Sketcher.Constraint("Horizontal", 5, 2, 12, 2),
    Sketcher.Constraint("Horizontal", 4, 2, 13, 2),
    Sketcher.Constraint("Horizontal", 2, 2, 15, 2),
    Sketcher.Constraint("Horizontal", 1, 2, 16, 2),
    Sketcher.Constraint("Horizontal", 0, 2, 17, 2),
    Sketcher.Constraint("Horizontal", 28, 2, 29, 2),
    Sketcher.Constraint("Horizontal", 26, 2, 31, 2),
    Sketcher.Constraint("Horizontal", 24, 2, 33, 2),
    Sketcher.Constraint("Horizontal", 22, 2, 35, 2),
    Sketcher.Constraint("Horizontal", 20, 2, 37, 2),
    Sketcher.Constraint("Vertical", 18, 2, 19, 2),
    Sketcher.Constraint("Vertical", 16, 2, 21, 2),
    Sketcher.Constraint("Vertical", 14, 2, 23, 2),
    Sketcher.Constraint("Vertical", 12, 2, 25, 2),
    Sketcher.Constraint("Vertical", 10, 2, 27, 2),
    Sketcher.Constraint("Equal", 0, 2),
    Sketcher.Constraint("Equal", 2, 4),
    Sketcher.Constraint("Radius", 3, 38.865338),
    Sketcher.Constraint("Radius", 1, 38.877577),
    Sketcher.Constraint("DistanceX", 3, 2, 1, 2, 6.602399),
    Sketcher.Constraint("DistanceX", 7, 2, 6, 2, 10.663798),
    Sketcher.Constraint("DistanceX", -1, 1, 0, 2, 38.47067),
    Sketcher.Constraint("DistanceY", -1, 1, 4, 2, 27.151181),
    Sketcher.Constraint("DistanceX", -1, 1, 5, 2, 17.223639),
])
pad2 = body.newObject("PartDesign::Pad", "Pad001")
pad2.Profile = sketch2
pad2.Length = Q("5 in")

# Sketch on XY plane
sketch3 = body.newObject("Sketcher::SketchObject", "Sketch002")
sketch3.AttachmentSupport = (doc.getObject("XY_Plane"), [""])
sketch3.MapMode = "FlatFace"
sketch3.AttachmentOffset = App.Placement(App.Vector(0, 0, 8.52 * 25.4), App.Rotation())
sketch3.addGeometry(Part.Circle(App.Vector(0, 0, 0), App.Vector(0, 0, 1), 26), False)
sketch3.addConstraint([
    Sketcher.Constraint("Coincident", 0, 3, -1, 1),
    Sketcher.Constraint("Diameter", 0, 52.904781),
])
pocket1 = body.newObject("PartDesign::Pocket", "Pocket")
pocket1.Profile = sketch3
pocket1.Length = Q("5.1 in")

# Sketch on XY plane
sketch4 = body.newObject("Sketcher::SketchObject", "Sketch003")
sketch4.AttachmentSupport = (doc.getObject("XY_Plane"), [""])
sketch4.MapMode = "FlatFace"
sketch4.AttachmentOffset = App.Placement(App.Vector(0, 0, 3.42 * 25.4), App.Rotation())
sketch4.addGeometry(Part.Circle(App.Vector(0, 0, 0), App.Vector(0, 0, 1), 25), False)
sketch4.addConstraint([
    Sketcher.Constraint("Coincident", 0, 3, -1, 1),
    Sketcher.Constraint("Diameter", 0, 49.820389),
])
pad3 = body.newObject("PartDesign::Pad", "Pad002")
pad3.Profile = sketch4
pad3.Length = Q("29.8 in")

doc.recompute()
